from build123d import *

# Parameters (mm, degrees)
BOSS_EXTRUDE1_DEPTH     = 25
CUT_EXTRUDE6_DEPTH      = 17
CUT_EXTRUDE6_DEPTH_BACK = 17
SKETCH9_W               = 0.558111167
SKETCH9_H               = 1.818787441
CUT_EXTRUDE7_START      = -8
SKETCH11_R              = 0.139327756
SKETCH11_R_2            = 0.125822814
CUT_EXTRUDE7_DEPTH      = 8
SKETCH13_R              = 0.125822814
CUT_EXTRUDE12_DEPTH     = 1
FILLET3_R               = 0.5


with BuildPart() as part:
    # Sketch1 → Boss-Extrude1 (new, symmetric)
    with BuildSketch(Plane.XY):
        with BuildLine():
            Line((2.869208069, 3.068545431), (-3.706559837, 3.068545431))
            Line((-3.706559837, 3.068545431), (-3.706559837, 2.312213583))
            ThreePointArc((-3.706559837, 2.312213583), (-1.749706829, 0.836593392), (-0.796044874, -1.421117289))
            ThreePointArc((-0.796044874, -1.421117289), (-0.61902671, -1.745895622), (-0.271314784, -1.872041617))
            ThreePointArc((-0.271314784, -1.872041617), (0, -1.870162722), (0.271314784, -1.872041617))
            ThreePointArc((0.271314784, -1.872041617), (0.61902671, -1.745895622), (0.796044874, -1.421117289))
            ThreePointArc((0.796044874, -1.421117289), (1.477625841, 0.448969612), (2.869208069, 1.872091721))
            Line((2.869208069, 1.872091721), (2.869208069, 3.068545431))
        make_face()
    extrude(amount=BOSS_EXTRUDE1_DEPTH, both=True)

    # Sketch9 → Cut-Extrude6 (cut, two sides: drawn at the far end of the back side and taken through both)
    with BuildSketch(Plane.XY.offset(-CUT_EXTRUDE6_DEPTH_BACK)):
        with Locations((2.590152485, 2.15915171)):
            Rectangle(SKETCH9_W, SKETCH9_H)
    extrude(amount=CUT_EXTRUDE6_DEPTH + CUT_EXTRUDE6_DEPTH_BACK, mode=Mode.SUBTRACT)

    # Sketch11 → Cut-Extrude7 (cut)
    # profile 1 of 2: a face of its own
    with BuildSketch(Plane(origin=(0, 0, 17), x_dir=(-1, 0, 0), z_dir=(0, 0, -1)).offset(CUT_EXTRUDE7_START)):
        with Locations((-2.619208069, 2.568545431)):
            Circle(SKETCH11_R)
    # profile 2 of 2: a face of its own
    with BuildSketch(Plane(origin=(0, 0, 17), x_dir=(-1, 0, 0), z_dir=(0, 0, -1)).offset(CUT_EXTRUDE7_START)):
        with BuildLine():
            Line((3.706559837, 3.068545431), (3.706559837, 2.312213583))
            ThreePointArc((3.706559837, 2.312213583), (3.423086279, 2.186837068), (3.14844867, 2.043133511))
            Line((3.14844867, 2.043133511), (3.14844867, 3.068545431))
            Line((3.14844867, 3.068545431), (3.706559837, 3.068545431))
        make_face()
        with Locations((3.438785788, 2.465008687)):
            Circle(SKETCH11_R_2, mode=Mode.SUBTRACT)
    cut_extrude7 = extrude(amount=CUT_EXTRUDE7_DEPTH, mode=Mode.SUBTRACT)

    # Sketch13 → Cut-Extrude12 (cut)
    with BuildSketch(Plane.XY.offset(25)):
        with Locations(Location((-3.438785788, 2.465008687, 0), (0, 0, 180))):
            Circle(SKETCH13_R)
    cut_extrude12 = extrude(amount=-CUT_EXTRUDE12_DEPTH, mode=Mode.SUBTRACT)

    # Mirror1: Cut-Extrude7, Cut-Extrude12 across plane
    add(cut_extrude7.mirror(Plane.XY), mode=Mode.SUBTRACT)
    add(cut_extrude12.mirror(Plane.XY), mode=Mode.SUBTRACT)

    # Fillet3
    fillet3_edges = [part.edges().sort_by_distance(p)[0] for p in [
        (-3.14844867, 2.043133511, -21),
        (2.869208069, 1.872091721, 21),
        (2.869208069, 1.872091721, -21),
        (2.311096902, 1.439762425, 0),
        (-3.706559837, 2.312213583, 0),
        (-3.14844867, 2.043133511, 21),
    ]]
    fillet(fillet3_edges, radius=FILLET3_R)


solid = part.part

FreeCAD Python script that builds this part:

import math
import FreeCAD as App
import Part
import Sketcher


def edges_at(feature, points):
    """Names of the edges that pass closest to the given points."""
    edges = feature.Shape.Edges
    near = lambda p: min(range(len(edges)), key=lambda i: edges[i].distToShape(Part.Vertex(*p))[0])
    return sorted({f"Edge{near(p) + 1}" for p in points})

doc = App.newDocument("Part")
body = doc.addObject("PartDesign::Body", "Body")

# Sketch on XY plane
sketch1 = doc.addObject("Sketcher::SketchObject", "Sketch")
body.addObject(sketch1)
sketch1.AttachmentSupport = (doc.XY_Plane, [""])
sketch1.MapMode = "FlatFace"
sketch1.addGeometry([
    Part.LineSegment(App.Vector(2.9, 3.1, 0), App.Vector(-3.7, 3.1, 0)),  # 0
    Part.LineSegment(App.Vector(-3.7, 3.1, 0), App.Vector(-3.7, 2.3, 0)),  # 1
    Part.ArcOfCircle(Part.Circle(App.Vector(-5.5, -2.1, 0), App.Vector(0, 0, 1), 4.7), math.radians(8), math.radians(68)),  # 2
    Part.ArcOfCircle(Part.Circle(App.Vector(-0.3, -1.3, 0), App.Vector(0, 0, 1), 0.5), math.radians(-172), math.radians(-89)),  # 3
    Part.ArcOfCircle(Part.Circle(App.Vector(0, -21.5, 0), App.Vector(0, 0, 1), 19.6), math.radians(89.21), math.radians(90.79)),  # 4
    Part.ArcOfCircle(Part.Circle(App.Vector(0.3, -1.3, 0), App.Vector(0, 0, 1), 0.5), math.radians(-91), math.radians(-8)),  # 5
    Part.ArcOfCircle(Part.Circle(App.Vector(5.5, -2.1, 0), App.Vector(0, 0, 1), 4.7), math.radians(123), math.radians(172)),  # 6
    Part.LineSegment(App.Vector(2.9, 1.9, 0), App.Vector(2.9, 3.1, 0)),  # 7
], False)
sketch1.addConstraint([
    Sketcher.Constraint("Coincident", 0, 2, 1, 1),
    Sketcher.Constraint("Coincident", 1, 2, 2, 2),
    Sketcher.Constraint("Tangent", 2, 1, 3, 1),
    Sketcher.Constraint("Tangent", 3, 2, 4, 2),
    Sketcher.Constraint("Tangent", 4, 1, 5, 1),
    Sketcher.Constraint("Tangent", 5, 2, 6, 2),
    Sketcher.Constraint("Coincident", 6, 1, 7, 1),
    Sketcher.Constraint("Coincident", 7, 2, 0, 1),
    Sketcher.Constraint("Horizontal", 0),
    Sketcher.Constraint("Vertical", 1),
    Sketcher.Constraint("Vertical", 7),
    Sketcher.Constraint("Equal", 3, 5),
    Sketcher.Constraint("Equal", 2, 6),
    Sketcher.Constraint("Symmetric", 3, 3, 5, 3, -2),
    Sketcher.Constraint("Horizontal", 2, 3, 6, 3),
    Sketcher.Constraint("Radius", 3, 0.522401),
    Sketcher.Constraint("Radius", 2, 4.722163),
    Sketcher.Constraint("Radius", 4, 19.590036),
    Sketcher.Constraint("DistanceY", 1, 2, 1, 1, 0.756332),
    Sketcher.Constraint("DistanceY", 4, 3, -1, 1, 21.460199),
    Sketcher.Constraint("DistanceX", 3, 3, 5, 3, 0.5571),
    Sketcher.Constraint("DistanceX", 2, 3, 0, 2, 1.767301),
    Sketcher.Constraint("DistanceX", 0, 2, 0, 1, 6.575768),
    Sketcher.Constraint("DistanceY", 7, 1, 7, 2, 1.196454),
])
pad1 = doc.addObject("PartDesign::Pad", "Pad")
body.addObject(pad1)
pad1.Profile = sketch1
pad1.Length = 50
pad1.Midplane = True

# Sketch on XY plane
sketch2 = doc.addObject("Sketcher::SketchObject", "Sketch001")
body.addObject(sketch2)
sketch2.AttachmentSupport = (doc.XY_Plane, [""])
sketch2.MapMode = "FlatFace"
sketch2.addGeometry([
    Part.LineSegment(App.Vector(2.3, 3.1, 0), App.Vector(2.3, 1.2, 0)),
    Part.LineSegment(App.Vector(2.3, 1.2, 0), App.Vector(2.9, 1.2, 0)),
    Part.LineSegment(App.Vector(2.9, 1.2, 0), App.Vector(2.9, 3.1, 0)),
    Part.LineSegment(App.Vector(2.9, 3.1, 0), App.Vector(2.3, 3.1, 0)),
], False)
sketch2.addConstraint([
    Sketcher.Constraint("Coincident", 0, 2, 1, 1),
    Sketcher.Constraint("Coincident", 1, 2, 2, 1),
    Sketcher.Constraint("Coincident", 2, 2, 3, 1),
    Sketcher.Constraint("Coincident", 3, 2, 0, 1),
    Sketcher.Constraint("Vertical", 0),
    Sketcher.Constraint("Horizontal", 1),
    Sketcher.Constraint("Vertical", 2),
    Sketcher.Constraint("Horizontal", 3),
    Sketcher.Constraint("DistanceX", 1, 1, 1, 2, 0.558111),
    Sketcher.Constraint("DistanceY", 0, 2, 0, 1, 1.818787),
    Sketcher.Constraint("DistanceX", -1, 1, 1, 2, 2.869208),
    Sketcher.Constraint("DistanceY", -1, 1, 0, 2, 1.249758),
])
pocket1 = doc.addObject("PartDesign::Pocket", "Pocket")
body.addObject(pocket1)
pocket1.Profile = sketch2
pocket1.Type = "TwoLengths"
pocket1.Length = 17
pocket1.Length2 = 17
pocket1.Reversed = True

# Sketch on XY plane
sketch3 = doc.addObject("Sketcher::SketchObject", "Sketch002")
body.addObject(sketch3)
sketch3.AttachmentSupport = (doc.XY_Plane, [""])
sketch3.MapMode = "FlatFace"
sketch3.AttachmentOffset = App.Placement(App.Vector(0, 0, 25), App.Rotation())
sketch3.addGeometry([
    Part.Circle(App.Vector(2.62, 2.57, 0), App.Vector(0, 0, 1), 0.14),  # 0
    Part.LineSegment(App.Vector(-3.71, 2.31, 0), App.Vector(-3.71, 3.07, 0)),  # 1
    Part.LineSegment(App.Vector(-3.71, 3.07, 0), App.Vector(-3.15, 3.07, 0)),  # 2
    Part.LineSegment(App.Vector(-3.15, 3.07, 0), App.Vector(-3.15, 2.04, 0)),  # 3
    Part.ArcOfCircle(Part.Circle(App.Vector(-5.47, -2.07, 0), App.Vector(0, 0, 1), 4.72), math.radians(60.5), math.radians(68.02)),  # 4
    Part.Circle(App.Vector(-3.44, 2.47, 0), App.Vector(0, 0, 1), 0.13),  # 5
], False)
sketch3.addConstraint([
    Sketcher.Constraint("Coincident", 1, 2, 2, 1),
    Sketcher.Constraint("Coincident", 2, 2, 3, 1),
    Sketcher.Constraint("Coincident", 3, 2, 4, 1),
    Sketcher.Constraint("Coincident", 4, 2, 1, 1),
    Sketcher.Constraint("Vertical", 1),
    Sketcher.Constraint("Horizontal", 2),
    Sketcher.Constraint("Vertical", 3),
    Sketcher.Constraint("DistanceY", 0, 3, 1, 2, 0.5),
    Sketcher.Constraint("Diameter", 0, 0.278656),
    Sketcher.Constraint("Diameter", 5, 0.251646),
    Sketcher.Constraint("Radius", 4, 4.722163),
    Sketcher.Constraint("DistanceX", 2, 1, 2, 2, 0.558111),
    Sketcher.Constraint("DistanceY", 1, 1, 1, 2, 0.756332),
    Sketcher.Constraint("DistanceY", 3, 2, 3, 1, 1.025412),
    Sketcher.Constraint("DistanceX", -1, 1, 0, 3, 2.619208),
    Sketcher.Constraint("DistanceX", 4, 3, -1, 1, 5.473861),
    Sketcher.Constraint("DistanceY", -1, 1, 5, 3, 2.465009),
    Sketcher.Constraint("DistanceY", -1, 1, 0, 3, 2.568545),
    Sketcher.Constraint("DistanceX", 5, 3, -1, 1, 3.438786),
])
pocket2 = doc.addObject("PartDesign::Pocket", "Pocket001")
body.addObject(pocket2)
pocket2.Profile = sketch3
pocket2.Length = 8

# Sketch on XY plane
sketch4 = doc.addObject("Sketcher::SketchObject", "Sketch003")
body.addObject(sketch4)
sketch4.AttachmentSupport = (doc.XY_Plane, [""])
sketch4.MapMode = "FlatFace"
sketch4.AttachmentOffset = App.Placement(App.Vector(0, 0, 25), App.Rotation())
sketch4.addGeometry(Part.Circle(App.Vector(-3.44, 2.47, 0), App.Vector(0, 0, 1), 0.13), False)
sketch4.addConstraint([
    Sketcher.Constraint("Diameter", 0, 0.251646),
    Sketcher.Constraint("DistanceY", -1, 1, 0, 3, 2.465009),
    Sketcher.Constraint("DistanceX", 0, 3, -1, 1, 3.438786),
])
pocket3 = doc.addObject("PartDesign::Pocket", "Pocket002")
body.addObject(pocket3)
pocket3.Profile = sketch4
pocket3.Length = 1
doc.recompute()

mirrored = doc.addObject("PartDesign::Mirrored", "Mirrored")
body.addObject(mirrored)
mirrored.Originals = [pocket2, pocket3]
mirrored.MirrorPlane = (doc.XY_Plane, [""])
body.Tip = mirrored
doc.recompute()

fillet = doc.addObject("PartDesign::Fillet", "Fillet")
body.addObject(fillet)
fillet.Base = (mirrored, edges_at(mirrored, [
    (-3.148, 2.043, -21),
    (2.869, 1.872, 21),
    (2.869, 1.872, -21),
    (2.311, 1.44, 0),
    (-3.707, 2.312, 0),
    (-3.148, 2.043, 21),
]))
fillet.Radius = 0.5

doc.recompute()
